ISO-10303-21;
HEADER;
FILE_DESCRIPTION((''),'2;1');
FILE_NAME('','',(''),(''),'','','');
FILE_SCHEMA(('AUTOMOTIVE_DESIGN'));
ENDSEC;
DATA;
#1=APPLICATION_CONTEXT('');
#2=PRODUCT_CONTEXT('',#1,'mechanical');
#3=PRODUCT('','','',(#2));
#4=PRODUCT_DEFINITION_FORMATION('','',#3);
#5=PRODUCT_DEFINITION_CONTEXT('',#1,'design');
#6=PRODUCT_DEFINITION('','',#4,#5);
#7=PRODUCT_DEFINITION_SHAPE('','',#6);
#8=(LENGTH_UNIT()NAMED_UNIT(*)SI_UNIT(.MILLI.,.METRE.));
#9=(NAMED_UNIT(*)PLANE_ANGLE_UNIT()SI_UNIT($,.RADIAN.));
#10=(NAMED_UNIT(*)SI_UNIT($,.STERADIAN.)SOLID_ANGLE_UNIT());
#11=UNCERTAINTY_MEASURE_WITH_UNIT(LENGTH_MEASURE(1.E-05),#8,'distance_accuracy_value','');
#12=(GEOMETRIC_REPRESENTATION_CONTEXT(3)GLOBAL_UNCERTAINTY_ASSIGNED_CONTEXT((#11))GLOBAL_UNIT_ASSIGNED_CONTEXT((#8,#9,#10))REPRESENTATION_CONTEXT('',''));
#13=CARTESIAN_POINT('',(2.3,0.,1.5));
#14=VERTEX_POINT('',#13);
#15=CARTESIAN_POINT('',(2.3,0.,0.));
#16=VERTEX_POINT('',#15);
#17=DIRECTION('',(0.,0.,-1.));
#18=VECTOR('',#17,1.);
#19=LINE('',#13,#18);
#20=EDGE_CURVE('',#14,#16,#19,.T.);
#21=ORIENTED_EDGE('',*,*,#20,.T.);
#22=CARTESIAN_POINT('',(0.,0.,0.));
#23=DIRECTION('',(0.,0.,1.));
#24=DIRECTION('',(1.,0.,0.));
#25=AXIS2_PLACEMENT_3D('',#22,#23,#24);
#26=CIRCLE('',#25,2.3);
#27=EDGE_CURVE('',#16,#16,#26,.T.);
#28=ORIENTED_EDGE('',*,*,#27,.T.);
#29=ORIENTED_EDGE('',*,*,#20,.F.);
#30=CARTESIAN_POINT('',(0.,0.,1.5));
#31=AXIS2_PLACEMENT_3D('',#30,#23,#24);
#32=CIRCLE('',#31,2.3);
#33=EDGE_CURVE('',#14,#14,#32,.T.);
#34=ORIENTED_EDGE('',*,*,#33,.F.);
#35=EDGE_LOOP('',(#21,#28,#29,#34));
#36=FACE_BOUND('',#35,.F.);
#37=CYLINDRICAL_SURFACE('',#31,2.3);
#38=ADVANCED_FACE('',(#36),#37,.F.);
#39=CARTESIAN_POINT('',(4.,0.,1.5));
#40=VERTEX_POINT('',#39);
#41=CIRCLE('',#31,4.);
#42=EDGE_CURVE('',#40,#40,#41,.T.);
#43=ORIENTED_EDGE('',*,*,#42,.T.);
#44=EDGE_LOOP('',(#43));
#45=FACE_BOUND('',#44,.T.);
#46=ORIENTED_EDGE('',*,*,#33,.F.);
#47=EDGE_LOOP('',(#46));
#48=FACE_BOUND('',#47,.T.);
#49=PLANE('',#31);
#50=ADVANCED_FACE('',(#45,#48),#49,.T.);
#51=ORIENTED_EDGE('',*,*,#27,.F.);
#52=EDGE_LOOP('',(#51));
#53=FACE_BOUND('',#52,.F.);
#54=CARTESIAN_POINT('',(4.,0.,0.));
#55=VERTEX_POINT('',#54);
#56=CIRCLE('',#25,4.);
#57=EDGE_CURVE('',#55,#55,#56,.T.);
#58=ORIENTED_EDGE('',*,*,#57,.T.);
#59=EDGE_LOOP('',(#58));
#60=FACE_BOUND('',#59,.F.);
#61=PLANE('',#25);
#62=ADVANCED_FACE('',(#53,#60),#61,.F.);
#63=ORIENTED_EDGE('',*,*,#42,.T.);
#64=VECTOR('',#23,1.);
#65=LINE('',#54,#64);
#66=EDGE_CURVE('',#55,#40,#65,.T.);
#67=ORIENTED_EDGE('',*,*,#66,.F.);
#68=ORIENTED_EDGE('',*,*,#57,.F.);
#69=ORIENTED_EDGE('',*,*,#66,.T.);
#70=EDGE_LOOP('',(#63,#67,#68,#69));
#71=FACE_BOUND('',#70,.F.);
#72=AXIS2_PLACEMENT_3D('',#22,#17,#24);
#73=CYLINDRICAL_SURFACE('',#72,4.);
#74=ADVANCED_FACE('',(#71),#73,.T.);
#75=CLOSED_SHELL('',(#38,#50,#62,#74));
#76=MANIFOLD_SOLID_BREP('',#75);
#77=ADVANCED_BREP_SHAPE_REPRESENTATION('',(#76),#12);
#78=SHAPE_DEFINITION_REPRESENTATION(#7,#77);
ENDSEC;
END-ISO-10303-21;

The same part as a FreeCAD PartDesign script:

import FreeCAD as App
import Part
import Sketcher
from FreeCAD import Vector

doc = App.newDocument("Part")
body = doc.addObject("PartDesign::Body", "Body")

# Sketch on XY plane
sketch1 = doc.addObject("Sketcher::SketchObject", "Sketch")
body.addObject(sketch1)
sketch1.AttachmentSupport = (doc.XY_Plane, [""])
sketch1.MapMode = "FlatFace"
sketch1.addGeometry(Part.Circle(Vector(0, 0, 0), Vector(0, 0, 1), 4), False)
sketch1.addConstraint(Sketcher.Constraint("Coincident", 0, 3, -1, 1))
sketch1.addConstraint(Sketcher.Constraint("Diameter", 0, 8.0))
pad1 = doc.addObject("PartDesign::Pad", "Pad")
body.addObject(pad1)
pad1.Profile = sketch1
pad1.Length = 1.5

# Sketch on XY plane
sketch2 = doc.addObject("Sketcher::SketchObject", "Sketch001")
body.addObject(sketch2)
sketch2.AttachmentSupport = (doc.XY_Plane, [""])
sketch2.MapMode = "FlatFace"
sketch2.AttachmentOffset = App.Placement(Vector(0, 0, 1.5), App.Rotation())
sketch2.addGeometry(Part.Circle(Vector(0, 0, 0), Vector(0, 0, 1), 2.3), False)
sketch2.addConstraint(Sketcher.Constraint("Coincident", 0, 3, -1, 1))
sketch2.addConstraint(Sketcher.Constraint("Diameter", 0, 4.6))
pocket1 = doc.addObject("PartDesign::Pocket", "Pocket")
body.addObject(pocket1)
pocket1.Profile = sketch2
pocket1.Type = "ThroughAll"

doc.recompute()
